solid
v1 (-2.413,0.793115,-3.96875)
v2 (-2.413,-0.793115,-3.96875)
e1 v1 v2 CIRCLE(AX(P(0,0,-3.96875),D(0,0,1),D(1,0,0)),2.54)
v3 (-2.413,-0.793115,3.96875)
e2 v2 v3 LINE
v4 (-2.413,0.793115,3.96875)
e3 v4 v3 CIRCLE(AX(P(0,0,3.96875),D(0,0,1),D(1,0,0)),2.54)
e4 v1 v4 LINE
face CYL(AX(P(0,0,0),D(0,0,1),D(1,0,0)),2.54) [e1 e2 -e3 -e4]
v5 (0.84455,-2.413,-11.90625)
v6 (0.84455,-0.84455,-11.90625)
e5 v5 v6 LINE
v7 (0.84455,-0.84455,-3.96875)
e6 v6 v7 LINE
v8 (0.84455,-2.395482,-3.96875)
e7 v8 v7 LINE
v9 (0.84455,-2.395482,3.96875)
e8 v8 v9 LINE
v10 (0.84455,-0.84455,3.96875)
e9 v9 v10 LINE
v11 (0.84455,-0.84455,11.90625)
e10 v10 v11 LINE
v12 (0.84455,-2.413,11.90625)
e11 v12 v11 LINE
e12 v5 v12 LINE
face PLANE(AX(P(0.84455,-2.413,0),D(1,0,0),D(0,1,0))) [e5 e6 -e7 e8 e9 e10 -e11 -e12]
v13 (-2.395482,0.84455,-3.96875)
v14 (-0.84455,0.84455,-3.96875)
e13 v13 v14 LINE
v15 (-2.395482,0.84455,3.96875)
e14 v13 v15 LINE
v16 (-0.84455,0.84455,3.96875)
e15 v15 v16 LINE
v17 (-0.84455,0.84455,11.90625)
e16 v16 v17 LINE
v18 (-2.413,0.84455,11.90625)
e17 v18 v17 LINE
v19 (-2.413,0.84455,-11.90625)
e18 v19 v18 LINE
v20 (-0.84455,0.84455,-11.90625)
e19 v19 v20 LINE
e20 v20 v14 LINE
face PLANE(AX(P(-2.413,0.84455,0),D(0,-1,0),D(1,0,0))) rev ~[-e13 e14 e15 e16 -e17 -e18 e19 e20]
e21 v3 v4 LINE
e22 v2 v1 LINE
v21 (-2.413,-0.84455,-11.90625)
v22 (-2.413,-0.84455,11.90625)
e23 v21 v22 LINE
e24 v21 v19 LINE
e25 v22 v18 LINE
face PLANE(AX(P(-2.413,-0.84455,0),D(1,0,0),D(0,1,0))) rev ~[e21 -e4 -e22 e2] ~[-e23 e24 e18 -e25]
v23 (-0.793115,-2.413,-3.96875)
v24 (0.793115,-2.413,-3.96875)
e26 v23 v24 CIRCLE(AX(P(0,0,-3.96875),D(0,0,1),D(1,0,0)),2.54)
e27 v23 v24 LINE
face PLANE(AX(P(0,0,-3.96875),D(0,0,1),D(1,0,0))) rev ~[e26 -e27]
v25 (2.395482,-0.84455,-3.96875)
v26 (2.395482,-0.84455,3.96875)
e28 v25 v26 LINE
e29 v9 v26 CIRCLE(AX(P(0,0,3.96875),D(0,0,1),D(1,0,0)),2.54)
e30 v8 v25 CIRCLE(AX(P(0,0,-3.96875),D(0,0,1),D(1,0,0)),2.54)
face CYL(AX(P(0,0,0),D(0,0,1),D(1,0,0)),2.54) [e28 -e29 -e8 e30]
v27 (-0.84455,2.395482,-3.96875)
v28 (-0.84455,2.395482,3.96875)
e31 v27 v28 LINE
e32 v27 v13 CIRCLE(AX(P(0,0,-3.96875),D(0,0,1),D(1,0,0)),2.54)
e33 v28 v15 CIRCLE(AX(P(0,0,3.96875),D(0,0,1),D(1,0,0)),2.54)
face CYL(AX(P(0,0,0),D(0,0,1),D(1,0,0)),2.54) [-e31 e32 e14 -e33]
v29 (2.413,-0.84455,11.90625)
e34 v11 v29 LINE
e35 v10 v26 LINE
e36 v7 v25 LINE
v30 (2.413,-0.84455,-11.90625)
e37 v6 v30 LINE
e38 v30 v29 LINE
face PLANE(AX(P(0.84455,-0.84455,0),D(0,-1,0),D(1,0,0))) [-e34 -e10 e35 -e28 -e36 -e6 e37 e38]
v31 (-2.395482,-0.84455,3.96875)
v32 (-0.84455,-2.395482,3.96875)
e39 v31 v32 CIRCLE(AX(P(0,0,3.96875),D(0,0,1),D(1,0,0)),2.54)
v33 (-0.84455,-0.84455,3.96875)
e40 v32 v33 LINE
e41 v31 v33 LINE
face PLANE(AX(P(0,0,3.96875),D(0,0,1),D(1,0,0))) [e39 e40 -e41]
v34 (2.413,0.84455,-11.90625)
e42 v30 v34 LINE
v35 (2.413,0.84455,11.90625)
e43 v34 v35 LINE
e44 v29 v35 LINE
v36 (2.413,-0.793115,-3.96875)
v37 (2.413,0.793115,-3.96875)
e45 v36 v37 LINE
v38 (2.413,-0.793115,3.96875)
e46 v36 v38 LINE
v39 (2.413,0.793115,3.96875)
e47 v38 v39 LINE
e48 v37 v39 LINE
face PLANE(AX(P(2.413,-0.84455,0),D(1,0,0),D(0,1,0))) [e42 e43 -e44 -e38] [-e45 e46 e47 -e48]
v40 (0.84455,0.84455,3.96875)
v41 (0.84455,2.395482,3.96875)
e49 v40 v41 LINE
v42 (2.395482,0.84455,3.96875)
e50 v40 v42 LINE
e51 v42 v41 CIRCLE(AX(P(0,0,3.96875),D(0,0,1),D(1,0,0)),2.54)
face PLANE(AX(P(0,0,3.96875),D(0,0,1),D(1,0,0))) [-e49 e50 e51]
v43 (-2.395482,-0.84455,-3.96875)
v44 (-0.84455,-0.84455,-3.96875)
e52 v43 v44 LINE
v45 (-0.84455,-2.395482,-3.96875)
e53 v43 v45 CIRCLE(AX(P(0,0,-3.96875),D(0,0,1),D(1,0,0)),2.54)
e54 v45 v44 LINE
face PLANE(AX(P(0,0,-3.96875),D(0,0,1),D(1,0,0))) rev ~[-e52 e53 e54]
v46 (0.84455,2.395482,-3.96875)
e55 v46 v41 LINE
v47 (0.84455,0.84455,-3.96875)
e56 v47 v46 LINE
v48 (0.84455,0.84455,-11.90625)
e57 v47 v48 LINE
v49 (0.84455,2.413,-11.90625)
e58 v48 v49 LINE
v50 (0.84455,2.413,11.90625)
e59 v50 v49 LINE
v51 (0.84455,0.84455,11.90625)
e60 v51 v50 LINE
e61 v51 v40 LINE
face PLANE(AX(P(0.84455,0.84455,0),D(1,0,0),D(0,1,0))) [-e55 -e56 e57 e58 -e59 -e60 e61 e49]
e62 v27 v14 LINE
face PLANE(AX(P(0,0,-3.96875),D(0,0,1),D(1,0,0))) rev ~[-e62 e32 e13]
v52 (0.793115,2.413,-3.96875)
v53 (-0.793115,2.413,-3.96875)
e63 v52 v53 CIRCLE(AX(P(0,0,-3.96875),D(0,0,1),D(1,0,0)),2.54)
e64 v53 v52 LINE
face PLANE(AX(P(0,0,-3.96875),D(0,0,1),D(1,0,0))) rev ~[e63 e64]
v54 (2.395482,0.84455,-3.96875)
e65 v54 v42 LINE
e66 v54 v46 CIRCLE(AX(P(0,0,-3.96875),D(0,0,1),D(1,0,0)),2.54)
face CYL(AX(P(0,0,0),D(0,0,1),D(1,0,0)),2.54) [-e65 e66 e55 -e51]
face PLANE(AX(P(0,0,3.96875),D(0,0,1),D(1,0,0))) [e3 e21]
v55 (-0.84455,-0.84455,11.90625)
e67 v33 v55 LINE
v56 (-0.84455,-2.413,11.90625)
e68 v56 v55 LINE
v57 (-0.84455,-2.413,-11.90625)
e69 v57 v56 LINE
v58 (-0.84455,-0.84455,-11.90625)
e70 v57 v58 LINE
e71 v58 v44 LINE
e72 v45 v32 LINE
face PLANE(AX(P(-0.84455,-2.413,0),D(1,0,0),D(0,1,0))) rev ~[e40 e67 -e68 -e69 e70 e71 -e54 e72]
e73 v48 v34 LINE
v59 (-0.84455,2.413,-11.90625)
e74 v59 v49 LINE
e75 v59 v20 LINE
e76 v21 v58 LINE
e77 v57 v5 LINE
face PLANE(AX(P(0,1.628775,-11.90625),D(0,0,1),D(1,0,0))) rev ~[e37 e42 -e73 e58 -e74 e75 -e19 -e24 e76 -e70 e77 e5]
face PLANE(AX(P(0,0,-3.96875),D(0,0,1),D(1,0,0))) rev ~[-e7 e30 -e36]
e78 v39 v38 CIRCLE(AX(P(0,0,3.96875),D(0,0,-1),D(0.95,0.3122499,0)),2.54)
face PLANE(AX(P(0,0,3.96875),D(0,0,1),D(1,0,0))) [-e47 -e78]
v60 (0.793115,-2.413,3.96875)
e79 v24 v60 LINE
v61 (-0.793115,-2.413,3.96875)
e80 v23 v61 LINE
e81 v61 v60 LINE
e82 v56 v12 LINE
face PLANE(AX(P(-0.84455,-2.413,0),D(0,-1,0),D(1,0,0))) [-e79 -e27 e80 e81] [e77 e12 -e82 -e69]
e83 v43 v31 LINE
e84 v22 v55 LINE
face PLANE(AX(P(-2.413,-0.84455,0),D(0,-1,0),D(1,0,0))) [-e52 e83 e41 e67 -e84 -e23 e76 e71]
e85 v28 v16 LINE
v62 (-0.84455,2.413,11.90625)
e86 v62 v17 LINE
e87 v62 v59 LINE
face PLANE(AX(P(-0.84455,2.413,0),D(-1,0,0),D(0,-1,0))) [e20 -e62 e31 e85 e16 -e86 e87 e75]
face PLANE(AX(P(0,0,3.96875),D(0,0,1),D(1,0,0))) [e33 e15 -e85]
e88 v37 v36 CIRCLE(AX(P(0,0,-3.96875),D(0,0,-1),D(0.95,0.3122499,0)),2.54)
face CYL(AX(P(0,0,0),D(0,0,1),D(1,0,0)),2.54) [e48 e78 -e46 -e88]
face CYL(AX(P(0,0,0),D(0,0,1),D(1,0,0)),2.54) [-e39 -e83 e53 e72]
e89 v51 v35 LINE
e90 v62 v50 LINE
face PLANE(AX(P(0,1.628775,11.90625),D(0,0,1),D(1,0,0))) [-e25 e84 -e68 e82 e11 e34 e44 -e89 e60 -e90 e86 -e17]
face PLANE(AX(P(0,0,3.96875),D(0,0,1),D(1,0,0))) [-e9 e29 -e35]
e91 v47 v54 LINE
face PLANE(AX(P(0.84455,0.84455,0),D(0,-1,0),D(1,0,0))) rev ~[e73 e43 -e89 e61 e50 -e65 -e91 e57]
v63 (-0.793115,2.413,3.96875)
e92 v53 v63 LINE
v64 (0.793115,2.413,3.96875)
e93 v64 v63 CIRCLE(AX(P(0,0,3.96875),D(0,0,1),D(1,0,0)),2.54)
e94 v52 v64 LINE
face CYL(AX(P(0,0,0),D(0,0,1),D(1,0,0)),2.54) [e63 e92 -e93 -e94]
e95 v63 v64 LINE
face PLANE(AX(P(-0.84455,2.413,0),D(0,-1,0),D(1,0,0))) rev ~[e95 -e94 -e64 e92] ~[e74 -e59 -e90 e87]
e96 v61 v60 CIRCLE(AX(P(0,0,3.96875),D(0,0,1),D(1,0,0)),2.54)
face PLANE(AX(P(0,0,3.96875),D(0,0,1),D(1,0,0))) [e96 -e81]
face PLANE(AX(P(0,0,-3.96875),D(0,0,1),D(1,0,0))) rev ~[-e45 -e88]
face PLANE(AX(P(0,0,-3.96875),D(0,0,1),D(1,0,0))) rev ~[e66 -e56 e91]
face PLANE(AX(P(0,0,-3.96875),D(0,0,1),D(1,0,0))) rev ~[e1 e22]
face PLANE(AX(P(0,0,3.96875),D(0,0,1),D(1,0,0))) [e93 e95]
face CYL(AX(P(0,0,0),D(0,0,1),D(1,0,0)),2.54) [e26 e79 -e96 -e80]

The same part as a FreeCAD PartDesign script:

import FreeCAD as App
import Part
import Sketcher
Q = App.Units.Quantity

doc = App.newDocument("Part")
body = doc.addObject("PartDesign::Body", "Body")

# Sketch on XY plane
sketch1 = body.newObject("Sketcher::SketchObject", "Sketch")
sketch1.AttachmentSupport = (doc.getObject("XY_Plane"), [""])
sketch1.MapMode = "FlatFace"
sketch1.addGeometry(Part.Circle(App.Vector(0, 0, 0), App.Vector(0, 0, 1), 2.5), False)
sketch1.addConstraint([
    Sketcher.Constraint("Coincident", 0, 3, -1, 1),
    Sketcher.Constraint("Diameter", 0, Q("0.2 in")),
])
pad1 = body.newObject("PartDesign::Pad", "Pad")
pad1.Profile = sketch1
pad1.Length = Q("0.3125 in")
pad1.Midplane = True

# Sketch on XY plane
sketch2 = body.newObject("Sketcher::SketchObject", "Sketch001")
sketch2.AttachmentSupport = (doc.getObject("XY_Plane"), [""])
sketch2.MapMode = "FlatFace"
sketch2.addGeometry([
    Part.LineSegment(App.Vector(-0.8, 2.4, 0), App.Vector(-0.8, 0.8, 0)),  # 0
    Part.LineSegment(App.Vector(-0.8, 0.8, 0), App.Vector(-2.4, 0.8, 0)),  # 1
    Part.LineSegment(App.Vector(-2.4, 0.8, 0), App.Vector(-2.4, -0.8, 0)),  # 2
    Part.LineSegment(App.Vector(-2.4, -0.8, 0), App.Vector(-0.8, -0.8, 0)),  # 3
    Part.LineSegment(App.Vector(-0.8, -0.8, 0), App.Vector(-0.8, -2.4, 0)),  # 4
    Part.LineSegment(App.Vector(-0.8, -2.4, 0), App.Vector(0.8, -2.4, 0)),  # 5
    Part.LineSegment(App.Vector(0.8, -2.4, 0), App.Vector(0.8, -0.8, 0)),  # 6
    Part.LineSegment(App.Vector(0.8, -0.8, 0), App.Vector(2.4, -0.8, 0)),  # 7
    Part.LineSegment(App.Vector(2.4, -0.8, 0), App.Vector(2.4, 0.8, 0)),  # 8
    Part.LineSegment(App.Vector(2.4, 0.8, 0), App.Vector(0.8, 0.8, 0)),  # 9
    Part.LineSegment(App.Vector(0.8, 0.8, 0), App.Vector(0.8, 2.4, 0)),  # 10
    Part.LineSegment(App.Vector(0.8, 2.4, 0), App.Vector(-0.8, 2.4, 0)),  # 11
], False)
sketch2.addConstraint([
    Sketcher.Constraint("Coincident", 0, 2, 1, 1),
    Sketcher.Constraint("Coincident", 1, 2, 2, 1),
    Sketcher.Constraint("Coincident", 2, 2, 3, 1),
    Sketcher.Constraint("Coincident", 3, 2, 4, 1),
    Sketcher.Constraint("Coincident", 4, 2, 5, 1),
    Sketcher.Constraint("Coincident", 5, 2, 6, 1),
    Sketcher.Constraint("Coincident", 6, 2, 7, 1),
    Sketcher.Constraint("Coincident", 7, 2, 8, 1),
    Sketcher.Constraint("Coincident", 8, 2, 9, 1),
    Sketcher.Constraint("Coincident", 9, 2, 10, 1),
    Sketcher.Constraint("Coincident", 10, 2, 11, 1),
    Sketcher.Constraint("Coincident", 11, 2, 0, 1),
    Sketcher.Constraint("Vertical", 0),
    Sketcher.Constraint("Horizontal", 1),
    Sketcher.Constraint("Vertical", 2),
    Sketcher.Constraint("Horizontal", 3),
    Sketcher.Constraint("Vertical", 4),
    Sketcher.Constraint("Horizontal", 5),
    Sketcher.Constraint("Vertical", 6),
    Sketcher.Constraint("Horizontal", 7),
    Sketcher.Constraint("Vertical", 8),
    Sketcher.Constraint("Horizontal", 9),
    Sketcher.Constraint("Vertical", 10),
    Sketcher.Constraint("Horizontal", 11),
    Sketcher.Constraint("Symmetric", 0, 2, 6, 2, -1, 1),
    Sketcher.Constraint("Symmetric", 2, 2, 8, 2, -1, 1),
    Sketcher.Constraint("Symmetric", 4, 2, 10, 2, -1, 1),
    Sketcher.Constraint("Symmetric", 3, 2, 6, 2, -2),
    Sketcher.Constraint("Equal", 9, 0),
    Sketcher.Constraint("Equal", 11, 2),
    Sketcher.Constraint("DistanceX", 5, 1, 5, 2, Q("0.0665 in")),
    Sketcher.Constraint("DistanceX", 1, 2, -1, 1, Q("0.095 in")),
])
pad2 = body.newObject("PartDesign::Pad", "Pad001")
pad2.Profile = sketch2
pad2.Length = Q("0.9375 in")
pad2.Midplane = True

doc.recompute()
